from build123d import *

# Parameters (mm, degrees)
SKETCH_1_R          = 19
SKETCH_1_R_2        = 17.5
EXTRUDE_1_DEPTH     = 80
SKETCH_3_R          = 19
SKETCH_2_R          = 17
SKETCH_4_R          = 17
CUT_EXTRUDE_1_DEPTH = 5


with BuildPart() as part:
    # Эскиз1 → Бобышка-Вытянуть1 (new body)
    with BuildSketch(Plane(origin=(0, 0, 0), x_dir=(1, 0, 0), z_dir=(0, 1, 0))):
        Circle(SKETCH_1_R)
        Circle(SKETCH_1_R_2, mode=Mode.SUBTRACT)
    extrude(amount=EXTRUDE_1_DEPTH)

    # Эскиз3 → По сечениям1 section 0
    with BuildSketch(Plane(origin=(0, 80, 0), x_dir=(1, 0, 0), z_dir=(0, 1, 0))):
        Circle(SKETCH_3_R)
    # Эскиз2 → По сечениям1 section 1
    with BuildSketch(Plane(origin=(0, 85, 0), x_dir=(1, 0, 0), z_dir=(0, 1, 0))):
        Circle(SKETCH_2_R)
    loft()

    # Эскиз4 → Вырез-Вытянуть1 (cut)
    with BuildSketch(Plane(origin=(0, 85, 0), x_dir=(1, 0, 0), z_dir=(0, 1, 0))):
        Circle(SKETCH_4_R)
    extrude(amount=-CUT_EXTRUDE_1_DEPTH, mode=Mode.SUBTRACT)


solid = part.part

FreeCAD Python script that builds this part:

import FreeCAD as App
import Part
import Sketcher

V = App.Vector
Q = App.Units.Quantity

doc = App.newDocument("Part")
params = doc.addObject("Spreadsheet::Sheet", "Params")
for row, (alias, value) in enumerate([
    ("sketch1_diameter", "38 mm"),
    ("sketch1_diameter2", "35 mm"),
    ("pad1_length", "80 mm"),
    ("sketch2_diameter", "38 mm"),
    ("sketch3_diameter", "34 mm"),
    ("sketch4_diameter", "34 mm"),
    ("pocket1_length", "5 mm"),
], start=1):
    params.set(f"A{row}", alias)
    params.set(f"B{row}", "=" + value)
    params.setAlias(f"B{row}", alias)

body = doc.addObject("PartDesign::Body", "Body")

# Sketch on XZ plane
sketch1 = body.newObject("Sketcher::SketchObject", "Sketch")
sketch1.AttachmentSupport = (doc.getObject("XZ_Plane"), [""])
sketch1.MapMode = "FlatFace"
sketch1.addGeometry(Part.Circle(V(0, 0, 0), V(0, 0, 1), 19), False)
sketch1.addGeometry(Part.Circle(V(0, 0, 0), V(0, 0, 1), 17.5), False)
sketch1.addConstraint(Sketcher.Constraint("Coincident", 0, 3, -1, 1))
sketch1.addConstraint(Sketcher.Constraint("Coincident", 1, 3, -1, 1))
sketch1.addConstraint(Sketcher.Constraint("Diameter", 0, Q("38 mm")))
sketch1.addConstraint(Sketcher.Constraint("Diameter", 1, Q("35 mm")))
sketch1.setExpression("Constraints[2]", "Params.sketch1_diameter")
sketch1.setExpression("Constraints[3]", "Params.sketch1_diameter2")
pad1 = body.newObject("PartDesign::Pad", "Pad")
pad1.Profile = sketch1
pad1.setExpression("Length", "Params.pad1_length")
pad1.Reversed = True

# Sketch on XZ plane
sketch2 = body.newObject("Sketcher::SketchObject", "Sketch001")
sketch2.AttachmentSupport = (doc.getObject("XZ_Plane"), [""])
sketch2.MapMode = "FlatFace"
sketch2.AttachmentOffset = App.Placement(V(0, 0, -80), App.Rotation())
sketch2.addGeometry(Part.Circle(V(0, 0, 0), V(0, 0, 1), 19), False)
sketch2.addConstraint(Sketcher.Constraint("Coincident", 0, 3, -1, 1))
sketch2.addConstraint(Sketcher.Constraint("Diameter", 0, Q("38 mm")))
sketch2.setExpression("Constraints[1]", "Params.sketch2_diameter")

# Sketch on XZ plane
sketch3 = body.newObject("Sketcher::SketchObject", "Sketch002")
sketch3.AttachmentSupport = (doc.getObject("XZ_Plane"), [""])
sketch3.MapMode = "FlatFace"
sketch3.AttachmentOffset = App.Placement(V(0, 0, -85), App.Rotation())
sketch3.addGeometry(Part.Circle(V(0, 0, 0), V(0, 0, 1), 17), False)
sketch3.addConstraint(Sketcher.Constraint("Coincident", 0, 3, -1, 1))
sketch3.addConstraint(Sketcher.Constraint("Diameter", 0, Q("34 mm")))
sketch3.setExpression("Constraints[1]", "Params.sketch3_diameter")

additiveloft = body.newObject("PartDesign::AdditiveLoft", "AdditiveLoft")
additiveloft.Profile = sketch2
additiveloft.Sections = [sketch3]

# Sketch on XZ plane
sketch4 = body.newObject("Sketcher::SketchObject", "Sketch003")
sketch4.AttachmentSupport = (doc.getObject("XZ_Plane"), [""])
sketch4.MapMode = "FlatFace"
sketch4.AttachmentOffset = App.Placement(V(0, 0, -85), App.Rotation())
sketch4.addGeometry(Part.Circle(V(0, 0, 0), V(0, 0, 1), 17), False)
sketch4.addConstraint(Sketcher.Constraint("Coincident", 0, 3, -1, 1))
sketch4.addConstraint(Sketcher.Constraint("Diameter", 0, Q("34 mm")))
sketch4.setExpression("Constraints[1]", "Params.sketch4_diameter")
pocket1 = body.newObject("PartDesign::Pocket", "Pocket")
pocket1.Profile = sketch4
pocket1.setExpression("Length", "Params.pocket1_length")
pocket1.Reversed = True

doc.recompute()
